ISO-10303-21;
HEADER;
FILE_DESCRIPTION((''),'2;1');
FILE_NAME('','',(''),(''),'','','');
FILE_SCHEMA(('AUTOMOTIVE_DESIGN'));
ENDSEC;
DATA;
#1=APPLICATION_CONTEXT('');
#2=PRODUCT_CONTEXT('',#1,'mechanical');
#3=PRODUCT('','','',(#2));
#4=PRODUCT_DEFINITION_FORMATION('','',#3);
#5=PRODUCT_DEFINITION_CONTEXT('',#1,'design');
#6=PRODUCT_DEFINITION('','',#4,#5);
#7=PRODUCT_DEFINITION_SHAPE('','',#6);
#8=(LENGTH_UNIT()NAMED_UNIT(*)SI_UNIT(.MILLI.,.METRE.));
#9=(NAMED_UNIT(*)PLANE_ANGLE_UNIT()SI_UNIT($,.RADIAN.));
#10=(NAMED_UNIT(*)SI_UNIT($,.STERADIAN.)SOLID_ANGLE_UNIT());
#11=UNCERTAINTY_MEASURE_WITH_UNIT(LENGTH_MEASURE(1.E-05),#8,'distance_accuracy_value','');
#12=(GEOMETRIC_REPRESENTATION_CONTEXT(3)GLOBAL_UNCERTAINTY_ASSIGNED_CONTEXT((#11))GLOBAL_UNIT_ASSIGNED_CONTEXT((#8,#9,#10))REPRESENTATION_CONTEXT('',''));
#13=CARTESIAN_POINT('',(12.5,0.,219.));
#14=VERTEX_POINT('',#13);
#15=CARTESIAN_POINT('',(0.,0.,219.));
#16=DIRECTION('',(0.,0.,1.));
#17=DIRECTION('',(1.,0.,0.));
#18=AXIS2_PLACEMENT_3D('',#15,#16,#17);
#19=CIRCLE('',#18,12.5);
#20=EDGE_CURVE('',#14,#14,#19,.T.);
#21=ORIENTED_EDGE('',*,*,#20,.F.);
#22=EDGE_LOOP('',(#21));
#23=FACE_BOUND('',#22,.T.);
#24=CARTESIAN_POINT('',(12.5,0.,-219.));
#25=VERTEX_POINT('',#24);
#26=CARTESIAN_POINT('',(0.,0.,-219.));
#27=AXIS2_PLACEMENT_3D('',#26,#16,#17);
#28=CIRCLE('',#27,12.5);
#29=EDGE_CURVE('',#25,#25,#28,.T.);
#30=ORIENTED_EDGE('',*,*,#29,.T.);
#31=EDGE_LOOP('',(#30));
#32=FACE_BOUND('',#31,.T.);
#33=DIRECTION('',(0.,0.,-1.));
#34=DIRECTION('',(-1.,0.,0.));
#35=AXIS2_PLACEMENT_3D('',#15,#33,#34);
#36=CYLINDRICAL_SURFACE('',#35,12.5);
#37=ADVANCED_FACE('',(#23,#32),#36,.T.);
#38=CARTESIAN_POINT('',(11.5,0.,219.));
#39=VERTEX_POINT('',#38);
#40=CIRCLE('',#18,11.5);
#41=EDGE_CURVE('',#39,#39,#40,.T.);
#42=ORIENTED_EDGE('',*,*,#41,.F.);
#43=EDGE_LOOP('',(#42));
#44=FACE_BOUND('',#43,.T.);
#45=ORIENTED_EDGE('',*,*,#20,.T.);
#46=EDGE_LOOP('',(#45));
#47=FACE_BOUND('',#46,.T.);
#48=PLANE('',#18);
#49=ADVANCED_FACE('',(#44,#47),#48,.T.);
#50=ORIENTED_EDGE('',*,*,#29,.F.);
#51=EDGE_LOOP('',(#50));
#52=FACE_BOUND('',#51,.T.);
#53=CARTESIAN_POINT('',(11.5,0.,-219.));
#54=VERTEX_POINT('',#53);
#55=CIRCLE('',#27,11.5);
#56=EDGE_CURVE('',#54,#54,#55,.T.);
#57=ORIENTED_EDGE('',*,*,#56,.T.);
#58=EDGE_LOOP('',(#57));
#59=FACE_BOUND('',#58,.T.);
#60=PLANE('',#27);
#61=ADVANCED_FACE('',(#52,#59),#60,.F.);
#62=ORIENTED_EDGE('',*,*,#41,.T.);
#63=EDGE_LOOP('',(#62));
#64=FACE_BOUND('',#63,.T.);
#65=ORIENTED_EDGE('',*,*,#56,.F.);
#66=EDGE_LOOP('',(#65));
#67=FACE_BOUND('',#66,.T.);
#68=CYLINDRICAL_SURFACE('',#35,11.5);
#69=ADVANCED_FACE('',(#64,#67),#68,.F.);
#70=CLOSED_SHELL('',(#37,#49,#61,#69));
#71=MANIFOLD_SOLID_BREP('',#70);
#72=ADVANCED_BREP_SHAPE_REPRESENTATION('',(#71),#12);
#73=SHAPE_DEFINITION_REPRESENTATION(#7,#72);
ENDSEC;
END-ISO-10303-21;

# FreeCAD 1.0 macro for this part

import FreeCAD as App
import Part
import Sketcher

V = App.Vector

doc = App.newDocument("Part")
body = doc.addObject("PartDesign::Body", "Body")

sketch1 = body.newObject("Sketcher::SketchObject", "Sketch")
sketch1.AttachmentSupport = (doc.getObject("XY_Plane"), [""])
sketch1.MapMode = "FlatFace"
sketch1.addGeometry(Part.Circle(V(0, 0, 0), V(0, 0, 1), 12), False)
sketch1.addGeometry(Part.Circle(V(0, 0, 0), V(0, 0, 1), 12), False)
sketch1.addConstraint(Sketcher.Constraint("Coincident", 0, 3, -1, 1))
sketch1.addConstraint(Sketcher.Constraint("Coincident", 1, 3, -1, 1))
sketch1.addConstraint(Sketcher.Constraint("Diameter", 0, 25.0))
sketch1.addConstraint(Sketcher.Constraint("Diameter", 1, 23.0))
pad1 = body.newObject("PartDesign::Pad", "Pad")
pad1.Profile = sketch1
pad1.Length = 438
pad1.Midplane = True

doc.recompute()
